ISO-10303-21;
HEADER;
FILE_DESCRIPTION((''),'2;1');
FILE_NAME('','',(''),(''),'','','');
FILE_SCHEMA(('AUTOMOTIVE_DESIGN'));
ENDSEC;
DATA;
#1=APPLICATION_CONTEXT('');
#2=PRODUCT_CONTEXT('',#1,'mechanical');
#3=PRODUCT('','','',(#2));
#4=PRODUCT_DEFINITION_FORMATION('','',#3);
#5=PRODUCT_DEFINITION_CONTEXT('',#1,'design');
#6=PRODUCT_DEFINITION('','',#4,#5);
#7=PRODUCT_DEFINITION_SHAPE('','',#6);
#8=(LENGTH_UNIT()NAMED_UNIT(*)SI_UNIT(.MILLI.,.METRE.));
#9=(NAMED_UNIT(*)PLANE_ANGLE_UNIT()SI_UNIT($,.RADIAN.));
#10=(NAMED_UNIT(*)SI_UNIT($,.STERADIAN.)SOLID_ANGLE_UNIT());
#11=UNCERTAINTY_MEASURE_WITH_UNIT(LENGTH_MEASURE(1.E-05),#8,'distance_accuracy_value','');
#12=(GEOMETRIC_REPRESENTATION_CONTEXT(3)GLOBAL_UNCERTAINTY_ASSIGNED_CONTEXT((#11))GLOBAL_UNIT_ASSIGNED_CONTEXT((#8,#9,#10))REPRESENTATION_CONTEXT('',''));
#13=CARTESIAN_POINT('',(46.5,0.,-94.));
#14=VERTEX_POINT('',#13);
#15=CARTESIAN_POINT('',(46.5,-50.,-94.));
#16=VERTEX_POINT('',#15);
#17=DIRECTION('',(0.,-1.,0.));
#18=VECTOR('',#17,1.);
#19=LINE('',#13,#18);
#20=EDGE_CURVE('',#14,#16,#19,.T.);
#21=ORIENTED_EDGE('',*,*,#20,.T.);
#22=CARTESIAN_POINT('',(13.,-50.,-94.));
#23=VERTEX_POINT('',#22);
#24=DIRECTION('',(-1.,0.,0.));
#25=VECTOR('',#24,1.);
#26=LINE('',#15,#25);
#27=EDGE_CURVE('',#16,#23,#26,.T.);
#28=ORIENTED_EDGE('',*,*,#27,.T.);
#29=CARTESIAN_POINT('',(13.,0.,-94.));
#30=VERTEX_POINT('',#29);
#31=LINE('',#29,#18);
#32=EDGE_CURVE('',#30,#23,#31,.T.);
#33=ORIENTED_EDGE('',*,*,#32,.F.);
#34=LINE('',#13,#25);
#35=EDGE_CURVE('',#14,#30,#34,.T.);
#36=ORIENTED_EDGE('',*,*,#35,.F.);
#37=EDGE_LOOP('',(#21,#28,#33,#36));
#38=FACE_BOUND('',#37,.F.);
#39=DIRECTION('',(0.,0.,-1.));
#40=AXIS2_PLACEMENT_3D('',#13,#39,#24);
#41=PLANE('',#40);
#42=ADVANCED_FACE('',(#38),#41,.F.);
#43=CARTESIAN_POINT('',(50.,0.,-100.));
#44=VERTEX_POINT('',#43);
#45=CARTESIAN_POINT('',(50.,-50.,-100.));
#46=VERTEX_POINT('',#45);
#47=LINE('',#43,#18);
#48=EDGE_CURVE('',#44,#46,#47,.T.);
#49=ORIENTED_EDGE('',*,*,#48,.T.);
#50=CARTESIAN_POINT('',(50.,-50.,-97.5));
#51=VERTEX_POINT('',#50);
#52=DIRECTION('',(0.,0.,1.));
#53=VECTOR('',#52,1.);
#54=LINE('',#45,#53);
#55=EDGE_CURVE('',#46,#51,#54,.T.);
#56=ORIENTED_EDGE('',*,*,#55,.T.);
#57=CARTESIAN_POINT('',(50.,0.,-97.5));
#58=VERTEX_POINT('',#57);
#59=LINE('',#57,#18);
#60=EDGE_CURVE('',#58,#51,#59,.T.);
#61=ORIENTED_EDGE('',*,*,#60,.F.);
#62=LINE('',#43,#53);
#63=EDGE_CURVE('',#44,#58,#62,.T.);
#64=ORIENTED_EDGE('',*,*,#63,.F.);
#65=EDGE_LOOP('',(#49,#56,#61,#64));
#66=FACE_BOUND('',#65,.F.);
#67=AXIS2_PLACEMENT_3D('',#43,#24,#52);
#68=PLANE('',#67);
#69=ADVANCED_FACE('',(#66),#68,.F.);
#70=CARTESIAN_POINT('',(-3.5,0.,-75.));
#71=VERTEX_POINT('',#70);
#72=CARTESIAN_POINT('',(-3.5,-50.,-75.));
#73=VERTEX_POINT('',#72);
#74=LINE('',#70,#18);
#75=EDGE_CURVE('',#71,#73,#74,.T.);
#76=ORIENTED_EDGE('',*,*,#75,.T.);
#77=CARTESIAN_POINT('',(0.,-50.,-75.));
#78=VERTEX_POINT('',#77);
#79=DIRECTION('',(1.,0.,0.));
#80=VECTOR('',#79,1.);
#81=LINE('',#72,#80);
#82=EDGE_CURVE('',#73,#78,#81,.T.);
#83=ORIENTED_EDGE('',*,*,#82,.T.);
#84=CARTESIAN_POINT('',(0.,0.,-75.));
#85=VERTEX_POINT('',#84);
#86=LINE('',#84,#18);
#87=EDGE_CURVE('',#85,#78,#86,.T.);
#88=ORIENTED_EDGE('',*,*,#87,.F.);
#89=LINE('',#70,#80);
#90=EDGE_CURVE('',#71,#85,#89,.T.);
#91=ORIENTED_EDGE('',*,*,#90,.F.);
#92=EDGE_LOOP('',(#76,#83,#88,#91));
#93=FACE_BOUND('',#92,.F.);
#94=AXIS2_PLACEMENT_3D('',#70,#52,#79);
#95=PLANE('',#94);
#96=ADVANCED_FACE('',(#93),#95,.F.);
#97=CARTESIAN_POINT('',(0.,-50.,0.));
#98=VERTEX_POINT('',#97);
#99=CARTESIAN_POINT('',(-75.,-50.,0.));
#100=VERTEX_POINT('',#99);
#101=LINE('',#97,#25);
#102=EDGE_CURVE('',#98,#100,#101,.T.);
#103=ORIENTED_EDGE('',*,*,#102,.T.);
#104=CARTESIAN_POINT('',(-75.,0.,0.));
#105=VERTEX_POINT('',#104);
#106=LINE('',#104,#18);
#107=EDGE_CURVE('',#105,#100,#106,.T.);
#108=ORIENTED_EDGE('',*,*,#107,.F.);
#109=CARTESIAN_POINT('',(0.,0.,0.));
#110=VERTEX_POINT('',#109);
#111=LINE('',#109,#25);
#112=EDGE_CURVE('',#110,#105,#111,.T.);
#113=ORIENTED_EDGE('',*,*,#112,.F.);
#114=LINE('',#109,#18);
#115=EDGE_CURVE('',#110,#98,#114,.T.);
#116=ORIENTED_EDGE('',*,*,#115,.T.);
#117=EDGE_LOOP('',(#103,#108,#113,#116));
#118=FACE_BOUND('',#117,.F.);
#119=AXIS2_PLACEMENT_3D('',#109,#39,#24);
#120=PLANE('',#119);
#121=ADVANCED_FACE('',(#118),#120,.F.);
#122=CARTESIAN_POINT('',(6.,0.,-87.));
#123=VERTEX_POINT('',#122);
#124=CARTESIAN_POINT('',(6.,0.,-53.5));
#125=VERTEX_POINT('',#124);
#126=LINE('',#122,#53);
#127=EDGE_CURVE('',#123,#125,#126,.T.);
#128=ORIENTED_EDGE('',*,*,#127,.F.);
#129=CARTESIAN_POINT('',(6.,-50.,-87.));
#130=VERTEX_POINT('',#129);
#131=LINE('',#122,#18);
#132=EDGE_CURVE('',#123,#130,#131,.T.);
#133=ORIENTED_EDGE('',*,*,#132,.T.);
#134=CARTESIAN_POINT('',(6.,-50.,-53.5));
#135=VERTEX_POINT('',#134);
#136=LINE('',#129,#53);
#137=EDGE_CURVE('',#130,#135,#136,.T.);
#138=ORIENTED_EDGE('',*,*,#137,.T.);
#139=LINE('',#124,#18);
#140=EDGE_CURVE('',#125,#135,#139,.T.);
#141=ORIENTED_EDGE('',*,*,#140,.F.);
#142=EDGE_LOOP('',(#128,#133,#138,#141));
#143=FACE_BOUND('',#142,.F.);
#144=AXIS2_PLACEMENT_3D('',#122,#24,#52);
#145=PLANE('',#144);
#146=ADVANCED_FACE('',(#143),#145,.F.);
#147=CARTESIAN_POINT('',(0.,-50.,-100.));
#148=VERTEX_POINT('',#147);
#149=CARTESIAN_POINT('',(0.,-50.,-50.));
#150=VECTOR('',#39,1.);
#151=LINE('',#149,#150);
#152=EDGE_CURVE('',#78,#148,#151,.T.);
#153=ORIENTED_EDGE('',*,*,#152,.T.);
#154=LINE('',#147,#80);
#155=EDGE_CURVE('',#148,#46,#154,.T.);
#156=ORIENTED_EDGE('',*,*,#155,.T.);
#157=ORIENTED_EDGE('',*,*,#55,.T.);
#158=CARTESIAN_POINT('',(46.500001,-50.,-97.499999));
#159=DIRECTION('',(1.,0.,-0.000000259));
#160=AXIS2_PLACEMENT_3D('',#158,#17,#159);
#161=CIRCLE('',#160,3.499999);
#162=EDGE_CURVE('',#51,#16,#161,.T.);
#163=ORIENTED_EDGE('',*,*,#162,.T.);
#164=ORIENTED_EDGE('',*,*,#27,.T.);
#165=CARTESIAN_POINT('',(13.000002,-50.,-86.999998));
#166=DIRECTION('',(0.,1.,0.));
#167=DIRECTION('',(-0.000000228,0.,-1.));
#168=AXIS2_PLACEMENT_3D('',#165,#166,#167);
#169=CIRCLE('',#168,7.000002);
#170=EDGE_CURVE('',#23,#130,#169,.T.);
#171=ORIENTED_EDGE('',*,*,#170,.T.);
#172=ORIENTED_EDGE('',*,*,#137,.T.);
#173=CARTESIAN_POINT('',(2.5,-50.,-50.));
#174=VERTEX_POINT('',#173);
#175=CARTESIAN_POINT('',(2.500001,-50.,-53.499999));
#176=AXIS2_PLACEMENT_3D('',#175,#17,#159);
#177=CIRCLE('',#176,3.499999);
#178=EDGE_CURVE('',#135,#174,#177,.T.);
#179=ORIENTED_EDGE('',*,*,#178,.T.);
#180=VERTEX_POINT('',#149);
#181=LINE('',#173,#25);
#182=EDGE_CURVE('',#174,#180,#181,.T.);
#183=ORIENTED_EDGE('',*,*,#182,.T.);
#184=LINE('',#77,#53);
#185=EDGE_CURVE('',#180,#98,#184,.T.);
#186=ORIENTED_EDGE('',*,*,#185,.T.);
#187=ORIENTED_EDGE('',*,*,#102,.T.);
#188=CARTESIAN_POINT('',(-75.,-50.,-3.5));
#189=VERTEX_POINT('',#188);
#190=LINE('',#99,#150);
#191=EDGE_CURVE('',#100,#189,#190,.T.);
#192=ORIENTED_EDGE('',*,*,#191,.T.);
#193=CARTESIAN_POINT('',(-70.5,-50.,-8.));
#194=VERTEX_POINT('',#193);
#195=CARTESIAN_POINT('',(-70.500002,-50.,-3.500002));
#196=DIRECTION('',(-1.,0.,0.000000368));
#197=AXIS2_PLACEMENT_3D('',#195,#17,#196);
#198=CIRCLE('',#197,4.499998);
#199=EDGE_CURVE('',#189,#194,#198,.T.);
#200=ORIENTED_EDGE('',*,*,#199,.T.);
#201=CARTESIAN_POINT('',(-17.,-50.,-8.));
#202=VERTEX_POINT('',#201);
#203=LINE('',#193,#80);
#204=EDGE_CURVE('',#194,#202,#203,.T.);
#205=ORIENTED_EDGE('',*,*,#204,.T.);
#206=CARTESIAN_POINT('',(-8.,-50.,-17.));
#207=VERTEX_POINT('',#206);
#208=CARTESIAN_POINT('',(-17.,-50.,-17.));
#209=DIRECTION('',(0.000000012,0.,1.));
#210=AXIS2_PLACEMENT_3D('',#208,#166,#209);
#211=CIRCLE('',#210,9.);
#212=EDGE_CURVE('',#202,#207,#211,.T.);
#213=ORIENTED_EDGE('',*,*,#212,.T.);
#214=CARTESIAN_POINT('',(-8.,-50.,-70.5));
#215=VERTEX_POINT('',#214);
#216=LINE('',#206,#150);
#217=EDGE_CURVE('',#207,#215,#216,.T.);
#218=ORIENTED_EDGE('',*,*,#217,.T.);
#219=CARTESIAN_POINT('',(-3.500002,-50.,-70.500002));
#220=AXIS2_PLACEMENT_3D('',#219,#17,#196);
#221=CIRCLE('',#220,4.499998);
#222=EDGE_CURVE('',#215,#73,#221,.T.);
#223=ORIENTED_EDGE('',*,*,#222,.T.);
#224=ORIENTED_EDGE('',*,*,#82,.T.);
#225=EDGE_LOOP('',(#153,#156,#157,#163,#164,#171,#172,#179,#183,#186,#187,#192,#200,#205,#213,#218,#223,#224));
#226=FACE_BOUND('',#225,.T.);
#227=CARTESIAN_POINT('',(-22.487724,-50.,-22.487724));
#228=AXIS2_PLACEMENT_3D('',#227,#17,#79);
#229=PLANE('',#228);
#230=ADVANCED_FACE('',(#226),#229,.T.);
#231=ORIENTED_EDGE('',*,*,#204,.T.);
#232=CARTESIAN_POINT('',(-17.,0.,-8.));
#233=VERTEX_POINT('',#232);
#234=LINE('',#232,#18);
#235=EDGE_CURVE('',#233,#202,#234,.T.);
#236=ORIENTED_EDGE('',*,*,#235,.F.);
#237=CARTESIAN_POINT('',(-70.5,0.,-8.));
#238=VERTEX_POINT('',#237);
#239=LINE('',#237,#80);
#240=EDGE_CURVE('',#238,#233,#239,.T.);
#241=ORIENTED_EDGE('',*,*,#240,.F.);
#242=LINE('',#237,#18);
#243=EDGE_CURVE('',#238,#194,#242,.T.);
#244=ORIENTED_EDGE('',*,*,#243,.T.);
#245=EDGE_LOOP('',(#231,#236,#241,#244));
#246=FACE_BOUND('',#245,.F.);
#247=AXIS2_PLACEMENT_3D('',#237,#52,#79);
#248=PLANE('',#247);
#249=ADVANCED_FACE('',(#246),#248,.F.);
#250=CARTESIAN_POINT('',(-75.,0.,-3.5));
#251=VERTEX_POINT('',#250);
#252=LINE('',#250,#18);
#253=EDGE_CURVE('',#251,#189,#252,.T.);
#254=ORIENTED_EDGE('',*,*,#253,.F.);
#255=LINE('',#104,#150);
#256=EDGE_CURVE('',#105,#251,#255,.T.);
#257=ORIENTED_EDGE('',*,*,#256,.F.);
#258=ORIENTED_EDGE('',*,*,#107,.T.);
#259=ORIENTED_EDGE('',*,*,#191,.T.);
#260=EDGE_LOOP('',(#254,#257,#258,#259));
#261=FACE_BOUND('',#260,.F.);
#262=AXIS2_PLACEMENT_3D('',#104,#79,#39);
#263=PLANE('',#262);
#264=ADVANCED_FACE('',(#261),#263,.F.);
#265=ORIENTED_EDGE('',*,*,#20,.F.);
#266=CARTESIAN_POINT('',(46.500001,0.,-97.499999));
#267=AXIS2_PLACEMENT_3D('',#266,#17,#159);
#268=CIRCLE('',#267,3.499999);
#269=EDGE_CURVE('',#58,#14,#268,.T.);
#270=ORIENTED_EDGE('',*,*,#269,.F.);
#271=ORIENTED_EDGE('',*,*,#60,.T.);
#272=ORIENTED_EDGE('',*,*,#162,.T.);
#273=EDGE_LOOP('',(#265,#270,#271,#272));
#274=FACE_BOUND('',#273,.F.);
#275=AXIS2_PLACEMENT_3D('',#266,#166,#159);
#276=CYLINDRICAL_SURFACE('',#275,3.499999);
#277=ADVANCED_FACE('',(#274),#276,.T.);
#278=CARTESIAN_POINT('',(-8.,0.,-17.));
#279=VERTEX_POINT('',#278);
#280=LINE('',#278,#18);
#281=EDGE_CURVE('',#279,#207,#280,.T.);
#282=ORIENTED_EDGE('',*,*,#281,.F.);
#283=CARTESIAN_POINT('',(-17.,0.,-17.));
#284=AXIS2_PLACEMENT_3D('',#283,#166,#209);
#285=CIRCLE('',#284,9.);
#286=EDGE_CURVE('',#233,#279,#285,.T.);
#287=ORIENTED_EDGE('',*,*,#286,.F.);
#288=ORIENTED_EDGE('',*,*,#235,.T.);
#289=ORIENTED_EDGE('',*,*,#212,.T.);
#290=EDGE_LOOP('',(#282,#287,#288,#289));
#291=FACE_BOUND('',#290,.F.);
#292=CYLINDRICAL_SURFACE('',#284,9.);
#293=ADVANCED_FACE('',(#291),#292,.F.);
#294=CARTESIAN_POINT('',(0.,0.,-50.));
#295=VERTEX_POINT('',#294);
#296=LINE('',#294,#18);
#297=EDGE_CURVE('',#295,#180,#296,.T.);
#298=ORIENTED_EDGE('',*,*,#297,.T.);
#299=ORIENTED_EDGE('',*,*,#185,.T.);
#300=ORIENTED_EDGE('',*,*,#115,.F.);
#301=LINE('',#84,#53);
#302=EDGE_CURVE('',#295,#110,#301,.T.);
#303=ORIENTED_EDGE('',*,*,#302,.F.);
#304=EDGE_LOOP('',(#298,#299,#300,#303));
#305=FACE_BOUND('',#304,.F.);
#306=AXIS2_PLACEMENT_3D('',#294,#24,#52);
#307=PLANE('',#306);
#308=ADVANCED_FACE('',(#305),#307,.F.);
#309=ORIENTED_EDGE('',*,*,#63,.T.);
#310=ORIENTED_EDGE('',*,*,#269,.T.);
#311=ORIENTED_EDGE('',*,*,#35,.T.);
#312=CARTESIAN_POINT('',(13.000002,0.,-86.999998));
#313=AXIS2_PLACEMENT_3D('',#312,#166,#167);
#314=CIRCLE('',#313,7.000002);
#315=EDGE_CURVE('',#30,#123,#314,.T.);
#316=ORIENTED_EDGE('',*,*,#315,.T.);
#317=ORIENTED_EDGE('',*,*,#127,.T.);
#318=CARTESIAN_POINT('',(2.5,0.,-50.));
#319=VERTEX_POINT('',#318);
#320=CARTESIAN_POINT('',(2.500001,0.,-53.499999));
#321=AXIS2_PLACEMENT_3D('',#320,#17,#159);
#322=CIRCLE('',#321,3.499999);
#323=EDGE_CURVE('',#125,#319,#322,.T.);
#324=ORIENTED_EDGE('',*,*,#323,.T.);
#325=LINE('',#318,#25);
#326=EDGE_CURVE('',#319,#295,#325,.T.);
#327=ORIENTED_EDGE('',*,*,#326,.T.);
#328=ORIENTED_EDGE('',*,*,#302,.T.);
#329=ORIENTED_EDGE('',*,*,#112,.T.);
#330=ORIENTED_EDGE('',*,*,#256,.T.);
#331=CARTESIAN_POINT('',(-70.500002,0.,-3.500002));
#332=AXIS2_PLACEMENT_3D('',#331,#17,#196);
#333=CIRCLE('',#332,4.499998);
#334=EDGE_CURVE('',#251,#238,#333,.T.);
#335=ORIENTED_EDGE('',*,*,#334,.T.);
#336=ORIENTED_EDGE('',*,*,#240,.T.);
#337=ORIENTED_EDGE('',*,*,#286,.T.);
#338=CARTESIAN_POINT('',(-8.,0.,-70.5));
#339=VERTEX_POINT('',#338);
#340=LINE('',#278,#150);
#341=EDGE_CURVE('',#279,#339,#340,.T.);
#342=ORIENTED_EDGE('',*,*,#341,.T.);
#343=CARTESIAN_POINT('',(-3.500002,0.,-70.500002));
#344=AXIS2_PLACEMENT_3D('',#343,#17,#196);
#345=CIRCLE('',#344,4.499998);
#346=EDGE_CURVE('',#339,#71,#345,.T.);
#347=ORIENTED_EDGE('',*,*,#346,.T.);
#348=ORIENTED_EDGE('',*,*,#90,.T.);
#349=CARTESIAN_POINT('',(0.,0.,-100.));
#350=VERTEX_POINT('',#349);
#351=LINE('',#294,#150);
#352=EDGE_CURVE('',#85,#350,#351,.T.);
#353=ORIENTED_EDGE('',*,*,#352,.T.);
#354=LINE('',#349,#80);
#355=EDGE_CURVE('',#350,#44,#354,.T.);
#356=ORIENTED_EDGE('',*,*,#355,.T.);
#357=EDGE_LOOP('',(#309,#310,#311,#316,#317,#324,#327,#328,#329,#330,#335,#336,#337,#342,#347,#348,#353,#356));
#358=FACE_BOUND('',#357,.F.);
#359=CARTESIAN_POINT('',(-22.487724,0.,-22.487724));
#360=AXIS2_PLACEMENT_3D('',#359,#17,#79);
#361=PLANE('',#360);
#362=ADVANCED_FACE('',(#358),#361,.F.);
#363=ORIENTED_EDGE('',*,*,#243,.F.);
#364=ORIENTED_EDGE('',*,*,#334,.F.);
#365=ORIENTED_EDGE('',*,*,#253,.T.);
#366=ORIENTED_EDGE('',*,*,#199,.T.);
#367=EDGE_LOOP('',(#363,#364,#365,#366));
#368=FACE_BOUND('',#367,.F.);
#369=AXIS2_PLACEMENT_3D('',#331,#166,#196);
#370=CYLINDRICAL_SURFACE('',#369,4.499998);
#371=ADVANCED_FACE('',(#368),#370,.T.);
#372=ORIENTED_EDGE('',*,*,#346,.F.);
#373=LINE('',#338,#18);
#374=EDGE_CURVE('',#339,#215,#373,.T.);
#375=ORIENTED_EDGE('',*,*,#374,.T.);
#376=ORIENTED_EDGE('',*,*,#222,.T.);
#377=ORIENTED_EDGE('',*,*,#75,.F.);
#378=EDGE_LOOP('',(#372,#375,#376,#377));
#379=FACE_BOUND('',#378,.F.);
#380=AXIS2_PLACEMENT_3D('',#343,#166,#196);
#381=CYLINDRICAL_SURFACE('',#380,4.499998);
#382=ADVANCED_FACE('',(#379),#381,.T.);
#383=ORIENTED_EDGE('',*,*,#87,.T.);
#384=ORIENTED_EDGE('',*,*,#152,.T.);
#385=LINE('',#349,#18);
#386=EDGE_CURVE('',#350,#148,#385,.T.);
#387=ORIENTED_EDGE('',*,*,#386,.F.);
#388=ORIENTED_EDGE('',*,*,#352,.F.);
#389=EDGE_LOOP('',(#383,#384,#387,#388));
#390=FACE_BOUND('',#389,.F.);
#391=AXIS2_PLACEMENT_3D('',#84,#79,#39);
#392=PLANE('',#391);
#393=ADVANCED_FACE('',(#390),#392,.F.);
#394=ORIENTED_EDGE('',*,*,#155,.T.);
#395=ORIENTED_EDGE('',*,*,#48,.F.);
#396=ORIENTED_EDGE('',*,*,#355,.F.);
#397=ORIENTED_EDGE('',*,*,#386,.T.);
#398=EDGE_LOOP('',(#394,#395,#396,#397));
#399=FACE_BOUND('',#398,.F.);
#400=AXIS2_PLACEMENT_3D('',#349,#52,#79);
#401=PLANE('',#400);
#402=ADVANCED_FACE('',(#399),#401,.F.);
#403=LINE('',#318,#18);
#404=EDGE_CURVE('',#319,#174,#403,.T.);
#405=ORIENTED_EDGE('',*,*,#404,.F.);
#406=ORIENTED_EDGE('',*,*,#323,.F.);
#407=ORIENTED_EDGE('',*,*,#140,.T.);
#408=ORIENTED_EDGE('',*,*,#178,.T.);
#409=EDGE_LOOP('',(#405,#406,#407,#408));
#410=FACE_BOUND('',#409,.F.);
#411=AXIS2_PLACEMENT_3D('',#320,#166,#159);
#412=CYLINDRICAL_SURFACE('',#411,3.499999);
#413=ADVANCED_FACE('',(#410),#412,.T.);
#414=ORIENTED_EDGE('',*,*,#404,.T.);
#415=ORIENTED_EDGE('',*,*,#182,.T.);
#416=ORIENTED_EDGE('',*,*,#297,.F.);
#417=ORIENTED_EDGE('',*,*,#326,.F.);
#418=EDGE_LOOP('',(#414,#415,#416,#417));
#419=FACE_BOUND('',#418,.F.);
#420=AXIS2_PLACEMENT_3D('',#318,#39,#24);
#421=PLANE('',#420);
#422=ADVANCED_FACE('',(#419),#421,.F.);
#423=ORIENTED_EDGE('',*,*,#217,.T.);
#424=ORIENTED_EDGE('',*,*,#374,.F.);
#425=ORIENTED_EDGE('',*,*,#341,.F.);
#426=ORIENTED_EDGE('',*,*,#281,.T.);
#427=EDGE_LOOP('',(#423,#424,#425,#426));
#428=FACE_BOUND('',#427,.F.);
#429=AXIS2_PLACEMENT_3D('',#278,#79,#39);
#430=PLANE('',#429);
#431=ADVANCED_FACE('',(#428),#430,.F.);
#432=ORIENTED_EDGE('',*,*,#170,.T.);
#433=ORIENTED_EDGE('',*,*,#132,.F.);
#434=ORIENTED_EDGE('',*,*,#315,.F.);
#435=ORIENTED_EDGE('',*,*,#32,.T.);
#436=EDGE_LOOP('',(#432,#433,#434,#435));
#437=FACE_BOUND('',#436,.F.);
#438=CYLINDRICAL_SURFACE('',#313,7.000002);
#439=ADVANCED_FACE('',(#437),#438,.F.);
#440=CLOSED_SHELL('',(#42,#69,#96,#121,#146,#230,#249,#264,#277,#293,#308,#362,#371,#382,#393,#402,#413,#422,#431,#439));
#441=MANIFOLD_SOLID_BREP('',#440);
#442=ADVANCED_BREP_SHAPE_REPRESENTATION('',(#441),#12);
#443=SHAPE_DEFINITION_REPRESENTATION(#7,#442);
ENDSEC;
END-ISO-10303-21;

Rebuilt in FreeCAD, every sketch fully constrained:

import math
import FreeCAD as App
import Part
import Sketcher

V = App.Vector

doc = App.newDocument("Part")
body = doc.addObject("PartDesign::Body", "Body")

sketch1 = body.newObject("Sketcher::SketchObject", "Sketch")
sketch1.AttachmentSupport = (doc.getObject("XZ_Plane"), [""])
sketch1.MapMode = "FlatFace"
sketch1.addGeometry([
    Part.LineSegment(V(0, 0, 0), V(-75, 0, 0)),
    Part.LineSegment(V(-75, 0, 0), V(-75, -3.5, 0)),
    Part.ArcOfCircle(Part.Circle(V(-70.5, -3.5, 0), V(0, 0, 1), 4.5), math.radians(180), math.radians(270)),
    Part.LineSegment(V(-70.5, -8, 0), V(-17, -8, 0)),
    Part.ArcOfCircle(Part.Circle(V(-17, -17, 0), V(0, 0, 1), 9), math.radians(0), math.radians(90)),
    Part.LineSegment(V(-8, -17, 0), V(-8, -70.5, 0)),
    Part.ArcOfCircle(Part.Circle(V(-3.5, -70.5, 0), V(0, 0, 1), 4.5), math.radians(180), math.radians(270)),
    Part.LineSegment(V(-3.5, -75, 0), V(0, -75, 0)),
    Part.LineSegment(V(0, -75, 0), V(0, -100, 0)),
    Part.LineSegment(V(0, -100, 0), V(50, -100, 0)),
    Part.LineSegment(V(50, -100, 0), V(50, -97.5, 0)),
    Part.ArcOfCircle(Part.Circle(V(46.5, -97.5, 0), V(0, 0, 1), 3.5), math.radians(0), math.radians(90)),
    Part.LineSegment(V(46.5, -94, 0), V(13, -94, 0)),
    Part.ArcOfCircle(Part.Circle(V(13, -87, 0), V(0, 0, 1), 7), math.radians(-180), math.radians(-90)),
    Part.LineSegment(V(6, -87, 0), V(6, -53.5, 0)),
    Part.ArcOfCircle(Part.Circle(V(2.5, -53.5, 0), V(0, 0, 1), 3.5), math.radians(0), math.radians(90)),
    Part.LineSegment(V(2.5, -50, 0), V(0, -50, 0)),
    Part.LineSegment(V(0, -50, 0), V(0, 0, 0)),
], False)
sketch1.addConstraint([
    Sketcher.Constraint("Coincident", 0, 2, 1, 1),
    Sketcher.Constraint("Tangent", 1, 2, 2, 1),
    Sketcher.Constraint("Tangent", 2, 2, 3, 1),
    Sketcher.Constraint("Tangent", 3, 2, 4, 2),
    Sketcher.Constraint("Tangent", 4, 1, 5, 1),
    Sketcher.Constraint("Tangent", 5, 2, 6, 1),
    Sketcher.Constraint("Tangent", 6, 2, 7, 1),
    Sketcher.Constraint("Coincident", 7, 2, 8, 1),
    Sketcher.Constraint("Coincident", 8, 2, 9, 1),
    Sketcher.Constraint("Coincident", 9, 2, 10, 1),
    Sketcher.Constraint("Tangent", 10, 2, 11, 1),
    Sketcher.Constraint("Tangent", 11, 2, 12, 1),
    Sketcher.Constraint("Tangent", 12, 2, 13, 2),
    Sketcher.Constraint("Tangent", 13, 1, 14, 1),
    Sketcher.Constraint("Tangent", 14, 2, 15, 1),
    Sketcher.Constraint("Tangent", 15, 2, 16, 1),
    Sketcher.Constraint("Coincident", 16, 2, 17, 1),
    Sketcher.Constraint("Coincident", 17, 2, 0, 1),
    Sketcher.Constraint("Horizontal", 0),
    Sketcher.Constraint("Vertical", 1),
    Sketcher.Constraint("Horizontal", 3),
    Sketcher.Constraint("Vertical", 5),
    Sketcher.Constraint("Horizontal", 7),
    Sketcher.Constraint("Vertical", 8),
    Sketcher.Constraint("Horizontal", 9),
    Sketcher.Constraint("Vertical", 10),
    Sketcher.Constraint("Horizontal", 12),
    Sketcher.Constraint("Vertical", 14),
    Sketcher.Constraint("Horizontal", 16),
    Sketcher.Constraint("Vertical", 17),
    Sketcher.Constraint("Coincident", 17, 2, -1, 1),
    Sketcher.Constraint("Equal", 2, 6),
    Sketcher.Constraint("Equal", 11, 15),
    Sketcher.Constraint("PointOnObject", 7, 2, -2),
    Sketcher.Constraint("Equal", 7, 1),
    Sketcher.Constraint("Equal", 3, 5),
    Sketcher.Constraint("Equal", 16, 10),
    Sketcher.Constraint("Equal", 12, 14),
    Sketcher.Constraint("Equal", 9, 17),
    Sketcher.Constraint("Radius", 4, 9.0),
    Sketcher.Constraint("Radius", 13, 7.000002),
    Sketcher.Constraint("Radius", 2, 4.499998),
    Sketcher.Constraint("Radius", 11, 3.499999),
    Sketcher.Constraint("DistanceX", 0, 2, 0, 1, 75.0),
    Sketcher.Constraint("DistanceX", 9, 1, 9, 2, 50.0),
    Sketcher.Constraint("DistanceX", 3, 1, 3, 2, 53.5),
    Sketcher.Constraint("DistanceX", 12, 2, 12, 1, 33.5),
])
pad1 = body.newObject("PartDesign::Pad", "Pad")
pad1.Profile = sketch1
pad1.Length = 50

doc.recompute()
